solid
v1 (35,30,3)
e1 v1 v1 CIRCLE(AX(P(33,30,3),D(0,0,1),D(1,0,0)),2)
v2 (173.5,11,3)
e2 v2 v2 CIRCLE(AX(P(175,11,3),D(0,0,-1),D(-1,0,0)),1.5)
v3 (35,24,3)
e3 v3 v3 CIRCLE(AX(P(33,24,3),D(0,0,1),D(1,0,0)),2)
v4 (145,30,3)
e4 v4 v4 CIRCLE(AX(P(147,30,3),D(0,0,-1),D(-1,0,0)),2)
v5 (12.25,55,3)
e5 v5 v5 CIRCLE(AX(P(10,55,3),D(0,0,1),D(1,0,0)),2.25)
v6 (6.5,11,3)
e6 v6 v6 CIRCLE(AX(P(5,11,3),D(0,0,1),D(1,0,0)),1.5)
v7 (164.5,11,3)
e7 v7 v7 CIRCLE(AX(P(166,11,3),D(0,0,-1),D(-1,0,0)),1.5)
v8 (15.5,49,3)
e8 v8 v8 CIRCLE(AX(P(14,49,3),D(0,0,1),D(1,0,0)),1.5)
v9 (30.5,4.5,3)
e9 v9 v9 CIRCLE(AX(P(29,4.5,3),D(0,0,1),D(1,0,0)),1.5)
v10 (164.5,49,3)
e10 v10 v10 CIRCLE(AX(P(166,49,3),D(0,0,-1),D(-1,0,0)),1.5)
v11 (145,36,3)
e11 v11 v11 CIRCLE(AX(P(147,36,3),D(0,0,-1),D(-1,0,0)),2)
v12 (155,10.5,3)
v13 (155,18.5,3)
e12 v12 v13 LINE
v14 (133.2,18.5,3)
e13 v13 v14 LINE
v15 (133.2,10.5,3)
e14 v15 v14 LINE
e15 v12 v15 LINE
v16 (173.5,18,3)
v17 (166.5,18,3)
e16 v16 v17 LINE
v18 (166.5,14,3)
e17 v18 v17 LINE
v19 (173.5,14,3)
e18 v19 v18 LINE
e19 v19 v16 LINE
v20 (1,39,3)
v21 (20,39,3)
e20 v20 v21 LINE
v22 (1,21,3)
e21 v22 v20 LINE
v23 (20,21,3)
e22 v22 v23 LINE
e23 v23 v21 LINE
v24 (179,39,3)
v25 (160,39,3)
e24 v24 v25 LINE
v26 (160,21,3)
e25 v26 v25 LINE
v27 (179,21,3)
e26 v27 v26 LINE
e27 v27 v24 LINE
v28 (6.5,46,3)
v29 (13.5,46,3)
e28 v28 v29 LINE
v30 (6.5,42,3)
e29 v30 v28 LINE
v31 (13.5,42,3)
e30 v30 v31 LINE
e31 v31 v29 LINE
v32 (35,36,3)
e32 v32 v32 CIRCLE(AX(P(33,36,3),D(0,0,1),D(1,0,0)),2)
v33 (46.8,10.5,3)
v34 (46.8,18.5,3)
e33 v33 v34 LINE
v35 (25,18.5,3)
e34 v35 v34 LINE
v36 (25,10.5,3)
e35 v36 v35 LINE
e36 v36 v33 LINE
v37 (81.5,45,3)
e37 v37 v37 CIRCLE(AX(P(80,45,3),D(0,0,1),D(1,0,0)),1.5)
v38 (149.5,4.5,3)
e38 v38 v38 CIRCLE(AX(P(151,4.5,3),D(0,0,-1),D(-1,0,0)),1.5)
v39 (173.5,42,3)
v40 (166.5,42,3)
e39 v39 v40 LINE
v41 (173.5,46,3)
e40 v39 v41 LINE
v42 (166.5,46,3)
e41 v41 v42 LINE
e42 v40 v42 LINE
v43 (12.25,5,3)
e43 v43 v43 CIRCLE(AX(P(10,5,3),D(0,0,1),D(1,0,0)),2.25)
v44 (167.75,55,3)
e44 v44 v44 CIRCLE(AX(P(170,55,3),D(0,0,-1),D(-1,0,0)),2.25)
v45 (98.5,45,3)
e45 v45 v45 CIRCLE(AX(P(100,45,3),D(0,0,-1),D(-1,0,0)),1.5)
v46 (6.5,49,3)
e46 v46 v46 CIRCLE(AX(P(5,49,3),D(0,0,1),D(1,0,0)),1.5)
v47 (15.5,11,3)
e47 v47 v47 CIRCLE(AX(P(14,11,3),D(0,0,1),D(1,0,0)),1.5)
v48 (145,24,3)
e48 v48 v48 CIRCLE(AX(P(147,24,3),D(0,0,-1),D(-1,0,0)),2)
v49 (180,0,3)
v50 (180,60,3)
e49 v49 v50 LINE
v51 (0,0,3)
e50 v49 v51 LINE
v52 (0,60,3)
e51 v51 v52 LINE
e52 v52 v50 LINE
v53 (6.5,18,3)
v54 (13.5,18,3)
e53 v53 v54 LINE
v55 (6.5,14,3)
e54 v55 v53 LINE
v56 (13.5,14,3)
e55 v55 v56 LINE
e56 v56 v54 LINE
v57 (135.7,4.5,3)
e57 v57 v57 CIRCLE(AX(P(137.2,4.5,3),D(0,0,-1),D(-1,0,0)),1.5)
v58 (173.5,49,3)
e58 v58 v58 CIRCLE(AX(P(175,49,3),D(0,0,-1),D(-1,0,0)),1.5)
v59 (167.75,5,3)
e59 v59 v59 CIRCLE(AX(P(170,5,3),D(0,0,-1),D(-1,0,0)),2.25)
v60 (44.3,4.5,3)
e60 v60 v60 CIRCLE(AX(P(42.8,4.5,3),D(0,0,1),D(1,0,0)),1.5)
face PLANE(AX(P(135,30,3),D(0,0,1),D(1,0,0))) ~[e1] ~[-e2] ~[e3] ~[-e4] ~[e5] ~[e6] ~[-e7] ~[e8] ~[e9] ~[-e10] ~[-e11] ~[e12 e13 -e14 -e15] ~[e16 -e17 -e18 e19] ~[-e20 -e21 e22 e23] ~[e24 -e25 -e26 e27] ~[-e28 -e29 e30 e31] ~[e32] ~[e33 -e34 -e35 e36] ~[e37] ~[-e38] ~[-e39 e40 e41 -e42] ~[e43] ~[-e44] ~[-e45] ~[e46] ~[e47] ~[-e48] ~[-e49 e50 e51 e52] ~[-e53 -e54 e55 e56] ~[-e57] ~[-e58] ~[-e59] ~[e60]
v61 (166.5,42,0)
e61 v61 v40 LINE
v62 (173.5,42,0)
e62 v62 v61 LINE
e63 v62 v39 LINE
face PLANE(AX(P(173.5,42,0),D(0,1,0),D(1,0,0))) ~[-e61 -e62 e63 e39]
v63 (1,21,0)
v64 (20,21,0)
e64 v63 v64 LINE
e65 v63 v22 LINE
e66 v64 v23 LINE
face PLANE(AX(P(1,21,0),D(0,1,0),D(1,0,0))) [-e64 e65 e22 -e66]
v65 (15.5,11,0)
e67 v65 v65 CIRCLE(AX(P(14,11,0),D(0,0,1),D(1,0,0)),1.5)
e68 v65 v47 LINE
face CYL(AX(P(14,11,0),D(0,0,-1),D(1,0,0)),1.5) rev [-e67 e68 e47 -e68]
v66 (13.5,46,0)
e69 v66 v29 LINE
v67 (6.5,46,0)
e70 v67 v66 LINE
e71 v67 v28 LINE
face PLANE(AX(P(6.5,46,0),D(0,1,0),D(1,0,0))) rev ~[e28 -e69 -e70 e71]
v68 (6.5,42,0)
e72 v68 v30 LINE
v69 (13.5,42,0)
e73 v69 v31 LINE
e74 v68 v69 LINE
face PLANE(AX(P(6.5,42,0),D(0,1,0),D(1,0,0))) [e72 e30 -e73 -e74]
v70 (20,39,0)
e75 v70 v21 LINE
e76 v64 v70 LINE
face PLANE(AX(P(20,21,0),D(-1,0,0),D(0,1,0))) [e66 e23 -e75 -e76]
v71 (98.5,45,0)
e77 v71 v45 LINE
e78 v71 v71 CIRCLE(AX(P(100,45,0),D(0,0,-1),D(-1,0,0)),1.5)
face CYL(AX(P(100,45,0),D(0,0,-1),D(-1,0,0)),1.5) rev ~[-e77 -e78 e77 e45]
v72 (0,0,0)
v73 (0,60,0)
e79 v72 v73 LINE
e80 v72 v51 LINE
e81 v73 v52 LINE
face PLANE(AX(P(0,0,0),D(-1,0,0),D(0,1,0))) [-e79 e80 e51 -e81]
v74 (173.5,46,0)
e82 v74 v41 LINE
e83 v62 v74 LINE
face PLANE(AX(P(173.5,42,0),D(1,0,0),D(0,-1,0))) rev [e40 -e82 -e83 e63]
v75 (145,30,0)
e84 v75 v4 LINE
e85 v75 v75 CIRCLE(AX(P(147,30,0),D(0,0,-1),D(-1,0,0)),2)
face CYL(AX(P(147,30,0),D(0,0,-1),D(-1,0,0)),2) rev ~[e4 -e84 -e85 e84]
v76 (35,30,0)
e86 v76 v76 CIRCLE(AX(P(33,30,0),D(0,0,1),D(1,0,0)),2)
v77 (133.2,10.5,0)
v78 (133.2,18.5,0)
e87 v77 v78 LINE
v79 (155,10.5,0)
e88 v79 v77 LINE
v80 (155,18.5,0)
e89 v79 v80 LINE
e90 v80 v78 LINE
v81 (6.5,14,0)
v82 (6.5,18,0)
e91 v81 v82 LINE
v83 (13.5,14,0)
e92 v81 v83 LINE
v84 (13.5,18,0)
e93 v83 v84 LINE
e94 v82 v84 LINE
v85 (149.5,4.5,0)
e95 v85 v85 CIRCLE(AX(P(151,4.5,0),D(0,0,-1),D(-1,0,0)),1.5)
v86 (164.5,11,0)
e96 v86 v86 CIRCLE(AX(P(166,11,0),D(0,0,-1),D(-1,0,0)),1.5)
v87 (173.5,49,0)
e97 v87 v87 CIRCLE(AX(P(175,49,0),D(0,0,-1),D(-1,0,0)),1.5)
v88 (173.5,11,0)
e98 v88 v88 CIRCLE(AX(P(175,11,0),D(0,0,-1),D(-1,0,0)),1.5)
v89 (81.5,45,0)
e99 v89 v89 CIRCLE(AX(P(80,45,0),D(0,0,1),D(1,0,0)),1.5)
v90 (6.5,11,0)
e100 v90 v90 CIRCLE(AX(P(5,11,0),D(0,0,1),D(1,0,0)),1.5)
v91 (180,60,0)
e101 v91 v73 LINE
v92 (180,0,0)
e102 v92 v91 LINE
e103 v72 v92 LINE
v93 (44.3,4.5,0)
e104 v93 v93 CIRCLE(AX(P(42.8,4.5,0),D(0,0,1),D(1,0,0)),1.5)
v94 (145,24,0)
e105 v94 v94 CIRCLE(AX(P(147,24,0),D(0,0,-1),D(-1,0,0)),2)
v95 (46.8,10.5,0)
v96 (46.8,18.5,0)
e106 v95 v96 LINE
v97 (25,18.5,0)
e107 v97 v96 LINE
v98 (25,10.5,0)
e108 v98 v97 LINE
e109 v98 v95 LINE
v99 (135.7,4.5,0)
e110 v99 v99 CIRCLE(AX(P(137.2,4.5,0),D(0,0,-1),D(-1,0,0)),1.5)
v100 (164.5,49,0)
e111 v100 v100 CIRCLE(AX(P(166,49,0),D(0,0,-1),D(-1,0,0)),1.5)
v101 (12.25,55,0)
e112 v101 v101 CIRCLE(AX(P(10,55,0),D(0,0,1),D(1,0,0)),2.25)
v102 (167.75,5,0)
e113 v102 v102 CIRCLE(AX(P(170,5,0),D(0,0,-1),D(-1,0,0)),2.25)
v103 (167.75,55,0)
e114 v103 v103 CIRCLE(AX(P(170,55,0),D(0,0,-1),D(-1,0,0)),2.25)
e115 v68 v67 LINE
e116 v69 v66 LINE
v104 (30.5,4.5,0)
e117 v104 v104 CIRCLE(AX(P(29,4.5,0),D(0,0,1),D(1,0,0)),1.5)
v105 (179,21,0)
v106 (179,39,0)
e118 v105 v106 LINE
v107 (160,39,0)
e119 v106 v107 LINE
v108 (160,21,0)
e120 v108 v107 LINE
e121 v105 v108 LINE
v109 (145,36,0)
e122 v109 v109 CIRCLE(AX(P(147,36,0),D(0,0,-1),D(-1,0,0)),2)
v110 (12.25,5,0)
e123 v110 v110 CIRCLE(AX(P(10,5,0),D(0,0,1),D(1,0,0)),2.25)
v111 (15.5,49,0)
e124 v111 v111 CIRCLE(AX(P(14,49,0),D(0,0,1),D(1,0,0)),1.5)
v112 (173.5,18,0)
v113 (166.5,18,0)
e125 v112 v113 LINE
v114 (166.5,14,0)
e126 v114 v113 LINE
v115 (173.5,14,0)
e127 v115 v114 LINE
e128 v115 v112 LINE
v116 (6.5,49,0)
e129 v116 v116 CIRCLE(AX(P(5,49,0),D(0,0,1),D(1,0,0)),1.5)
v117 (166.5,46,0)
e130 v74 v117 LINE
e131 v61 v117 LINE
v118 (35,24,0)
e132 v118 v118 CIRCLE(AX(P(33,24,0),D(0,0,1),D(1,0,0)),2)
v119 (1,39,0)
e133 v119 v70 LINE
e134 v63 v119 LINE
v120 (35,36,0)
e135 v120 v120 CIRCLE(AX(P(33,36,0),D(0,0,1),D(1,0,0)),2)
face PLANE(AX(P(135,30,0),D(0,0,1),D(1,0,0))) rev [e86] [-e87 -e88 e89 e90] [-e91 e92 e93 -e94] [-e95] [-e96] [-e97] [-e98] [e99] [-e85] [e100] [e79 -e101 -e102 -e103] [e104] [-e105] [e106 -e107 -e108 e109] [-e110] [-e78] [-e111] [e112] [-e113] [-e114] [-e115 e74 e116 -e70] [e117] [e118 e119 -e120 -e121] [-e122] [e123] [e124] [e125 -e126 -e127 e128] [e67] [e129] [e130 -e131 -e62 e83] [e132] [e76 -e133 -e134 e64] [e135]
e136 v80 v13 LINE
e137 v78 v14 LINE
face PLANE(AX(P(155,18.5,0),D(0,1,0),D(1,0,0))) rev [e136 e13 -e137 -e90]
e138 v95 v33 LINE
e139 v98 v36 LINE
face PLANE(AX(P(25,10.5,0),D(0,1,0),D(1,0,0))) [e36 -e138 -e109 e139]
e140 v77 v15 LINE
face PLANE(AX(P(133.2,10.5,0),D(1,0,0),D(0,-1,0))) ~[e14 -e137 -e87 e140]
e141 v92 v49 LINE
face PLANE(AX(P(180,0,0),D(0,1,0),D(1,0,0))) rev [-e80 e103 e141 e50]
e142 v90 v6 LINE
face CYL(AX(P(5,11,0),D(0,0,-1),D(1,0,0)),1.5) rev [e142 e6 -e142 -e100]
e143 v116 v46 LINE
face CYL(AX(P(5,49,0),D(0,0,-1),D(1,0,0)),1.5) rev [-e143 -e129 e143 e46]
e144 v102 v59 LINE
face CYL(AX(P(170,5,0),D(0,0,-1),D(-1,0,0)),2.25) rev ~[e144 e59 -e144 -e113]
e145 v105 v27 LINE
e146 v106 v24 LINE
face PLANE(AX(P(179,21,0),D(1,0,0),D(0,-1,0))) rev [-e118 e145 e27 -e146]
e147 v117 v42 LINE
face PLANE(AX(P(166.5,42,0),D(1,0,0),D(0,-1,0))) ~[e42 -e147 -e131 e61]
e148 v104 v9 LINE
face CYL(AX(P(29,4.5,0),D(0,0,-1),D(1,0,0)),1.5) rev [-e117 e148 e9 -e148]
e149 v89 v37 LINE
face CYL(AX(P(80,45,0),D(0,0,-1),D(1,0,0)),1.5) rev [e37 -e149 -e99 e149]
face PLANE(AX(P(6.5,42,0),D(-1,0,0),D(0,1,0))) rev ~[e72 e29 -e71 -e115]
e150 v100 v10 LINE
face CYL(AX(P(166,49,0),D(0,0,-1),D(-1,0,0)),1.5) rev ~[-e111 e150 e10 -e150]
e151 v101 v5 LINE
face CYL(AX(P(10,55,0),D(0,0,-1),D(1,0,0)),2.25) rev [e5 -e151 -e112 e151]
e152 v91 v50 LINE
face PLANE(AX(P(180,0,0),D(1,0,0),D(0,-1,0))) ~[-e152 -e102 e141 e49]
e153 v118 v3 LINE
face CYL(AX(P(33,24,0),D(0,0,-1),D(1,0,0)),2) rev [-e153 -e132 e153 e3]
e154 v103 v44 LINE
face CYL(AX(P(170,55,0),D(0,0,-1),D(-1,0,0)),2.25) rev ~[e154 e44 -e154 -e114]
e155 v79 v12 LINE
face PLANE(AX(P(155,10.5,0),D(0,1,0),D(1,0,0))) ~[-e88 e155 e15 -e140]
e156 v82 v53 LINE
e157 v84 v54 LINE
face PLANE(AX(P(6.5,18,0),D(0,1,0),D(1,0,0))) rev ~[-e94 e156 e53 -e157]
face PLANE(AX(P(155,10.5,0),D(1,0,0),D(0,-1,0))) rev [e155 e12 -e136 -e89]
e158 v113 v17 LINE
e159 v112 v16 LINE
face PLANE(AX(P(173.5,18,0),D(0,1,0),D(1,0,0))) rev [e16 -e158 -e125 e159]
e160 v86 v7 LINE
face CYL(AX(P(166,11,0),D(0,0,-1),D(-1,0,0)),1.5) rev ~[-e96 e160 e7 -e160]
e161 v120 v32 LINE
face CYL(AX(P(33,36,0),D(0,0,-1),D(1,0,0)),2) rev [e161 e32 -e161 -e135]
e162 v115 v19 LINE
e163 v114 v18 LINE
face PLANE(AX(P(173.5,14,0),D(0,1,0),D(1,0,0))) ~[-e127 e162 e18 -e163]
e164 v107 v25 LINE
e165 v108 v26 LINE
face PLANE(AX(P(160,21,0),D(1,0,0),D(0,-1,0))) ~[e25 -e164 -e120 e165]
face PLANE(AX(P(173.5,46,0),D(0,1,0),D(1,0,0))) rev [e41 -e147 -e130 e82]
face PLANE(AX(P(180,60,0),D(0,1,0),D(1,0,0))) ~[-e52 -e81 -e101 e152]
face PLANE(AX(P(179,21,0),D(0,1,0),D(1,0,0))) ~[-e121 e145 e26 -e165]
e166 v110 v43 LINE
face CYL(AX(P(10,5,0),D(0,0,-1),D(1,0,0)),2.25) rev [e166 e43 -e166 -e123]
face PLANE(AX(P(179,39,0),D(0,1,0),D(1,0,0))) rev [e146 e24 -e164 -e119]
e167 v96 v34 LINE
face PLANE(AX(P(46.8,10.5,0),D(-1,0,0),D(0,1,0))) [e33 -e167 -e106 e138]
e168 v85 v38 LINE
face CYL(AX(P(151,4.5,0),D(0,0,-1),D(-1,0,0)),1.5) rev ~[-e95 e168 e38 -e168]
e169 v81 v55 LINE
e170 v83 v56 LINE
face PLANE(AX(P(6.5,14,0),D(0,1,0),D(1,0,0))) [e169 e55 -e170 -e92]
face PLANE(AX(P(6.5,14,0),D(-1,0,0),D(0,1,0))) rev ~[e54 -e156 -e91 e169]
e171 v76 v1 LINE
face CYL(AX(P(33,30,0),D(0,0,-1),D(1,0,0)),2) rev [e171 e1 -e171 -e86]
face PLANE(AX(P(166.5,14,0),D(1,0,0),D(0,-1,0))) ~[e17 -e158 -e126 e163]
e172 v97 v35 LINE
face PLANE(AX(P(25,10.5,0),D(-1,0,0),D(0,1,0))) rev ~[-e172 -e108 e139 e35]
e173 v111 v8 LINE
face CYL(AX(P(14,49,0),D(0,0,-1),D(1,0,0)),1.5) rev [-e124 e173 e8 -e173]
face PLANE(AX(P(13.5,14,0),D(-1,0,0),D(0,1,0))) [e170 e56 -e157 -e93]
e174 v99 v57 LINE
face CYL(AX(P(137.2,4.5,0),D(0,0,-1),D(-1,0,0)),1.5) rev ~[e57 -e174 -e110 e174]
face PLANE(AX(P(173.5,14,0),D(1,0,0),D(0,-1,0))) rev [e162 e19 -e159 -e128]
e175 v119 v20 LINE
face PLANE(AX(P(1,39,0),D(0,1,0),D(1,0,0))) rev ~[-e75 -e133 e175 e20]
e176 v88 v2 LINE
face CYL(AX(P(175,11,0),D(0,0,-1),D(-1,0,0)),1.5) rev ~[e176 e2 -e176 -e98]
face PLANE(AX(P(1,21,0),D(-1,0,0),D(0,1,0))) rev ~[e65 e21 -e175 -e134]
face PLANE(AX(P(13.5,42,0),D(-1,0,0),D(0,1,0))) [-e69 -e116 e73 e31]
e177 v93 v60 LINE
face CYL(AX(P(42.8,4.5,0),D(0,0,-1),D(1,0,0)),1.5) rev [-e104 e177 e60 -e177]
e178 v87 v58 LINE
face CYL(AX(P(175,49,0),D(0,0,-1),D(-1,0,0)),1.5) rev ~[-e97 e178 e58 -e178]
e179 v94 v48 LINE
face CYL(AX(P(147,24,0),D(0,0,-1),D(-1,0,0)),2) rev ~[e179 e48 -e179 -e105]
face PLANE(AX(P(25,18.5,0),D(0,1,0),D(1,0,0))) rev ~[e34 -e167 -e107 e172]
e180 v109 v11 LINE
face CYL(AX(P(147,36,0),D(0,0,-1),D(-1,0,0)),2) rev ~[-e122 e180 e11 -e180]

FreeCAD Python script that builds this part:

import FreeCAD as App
import Part
import Sketcher
from FreeCAD import Vector


def add_polygon(sketch, points):
    """Adds a closed chain of lines whose ends are joined by coincident constraints."""
    first, n = sketch.GeometryCount, len(points)
    for a, b in zip(points, points[1:] + points[:1]):
        sketch.addGeometry(Part.LineSegment(App.Vector(*a, 0), App.Vector(*b, 0)), False)
    for i in range(n):
        sketch.addConstraint(Sketcher.Constraint("Coincident", first + i, 2, first + (i + 1) % n, 1))

doc = App.newDocument("Part")
body = doc.addObject("PartDesign::Body", "Body")

# Sketch on XY plane
sketch1 = body.newObject("Sketcher::SketchObject", "Sketch")
sketch1.AttachmentSupport = (doc.getObject("XY_Plane"), [""])
sketch1.MapMode = "FlatFace"
add_polygon(sketch1, [(0, 60), (0, 0), (90, 0), (90, 60)])  # lines 0-3
sketch1.addGeometry(Part.Circle(Vector(10, 5, 0), Vector(0, 0, 1), 2.2), False)  # 4
sketch1.addGeometry(Part.Circle(Vector(5, 11, 0), Vector(0, 0, 1), 1.5), False)  # 5
add_polygon(sketch1, [(13.5, 14), (6.5, 14), (6.5, 18), (13.5, 18)])  # lines 6-9
sketch1.addGeometry(Part.Circle(Vector(14, 11, 0), Vector(0, 0, 1), 1.5), False)  # 10
sketch1.addGeometry(Part.Circle(Vector(29, 4.5, 0), Vector(0, 0, 1), 1.5), False)  # 11
add_polygon(sketch1, [(46.8, 10.5), (25, 10.5), (25, 18.5), (46.8, 18.5)])  # lines 12-15
sketch1.addGeometry(Part.Circle(Vector(33, 24, 0), Vector(0, 0, 1), 2), False)  # 16
sketch1.addGeometry(Part.Circle(Vector(42.8, 4.5, 0), Vector(0, 0, 1), 1.5), False)  # 17
add_polygon(sketch1, [(20, 21), (1, 21), (1, 39), (20, 39)])  # lines 18-21
sketch1.addGeometry(Part.Circle(Vector(33, 30, 0), Vector(0, 0, 1), 2), False)  # 22
sketch1.addGeometry(Part.Circle(Vector(33, 36, 0), Vector(0, 0, 1), 2), False)  # 23
add_polygon(sketch1, [(13.5, 42), (6.5, 42), (6.5, 46), (13.5, 46)])  # lines 24-27
sketch1.addGeometry(Part.Circle(Vector(5, 49, 0), Vector(0, 0, 1), 1.5), False)  # 28
sketch1.addGeometry(Part.Circle(Vector(14, 49, 0), Vector(0, 0, 1), 1.5), False)  # 29
sketch1.addGeometry(Part.Circle(Vector(10, 55, 0), Vector(0, 0, 1), 2.2), False)  # 30
sketch1.addGeometry(Part.Circle(Vector(80, 45, 0), Vector(0, 0, 1), 1.5), False)  # 31
sketch1.addConstraint(Sketcher.Constraint("Vertical", 0))
sketch1.addConstraint(Sketcher.Constraint("Horizontal", 1))
sketch1.addConstraint(Sketcher.Constraint("Vertical", 2))
sketch1.addConstraint(Sketcher.Constraint("Horizontal", 3))
sketch1.addConstraint(Sketcher.Constraint("Horizontal", 6))
sketch1.addConstraint(Sketcher.Constraint("Vertical", 7))
sketch1.addConstraint(Sketcher.Constraint("Horizontal", 8))
sketch1.addConstraint(Sketcher.Constraint("Vertical", 9))
sketch1.addConstraint(Sketcher.Constraint("Horizontal", 12))
sketch1.addConstraint(Sketcher.Constraint("Vertical", 13))
sketch1.addConstraint(Sketcher.Constraint("Horizontal", 14))
sketch1.addConstraint(Sketcher.Constraint("Vertical", 15))
sketch1.addConstraint(Sketcher.Constraint("Horizontal", 18))
sketch1.addConstraint(Sketcher.Constraint("Vertical", 19))
sketch1.addConstraint(Sketcher.Constraint("Horizontal", 20))
sketch1.addConstraint(Sketcher.Constraint("Vertical", 21))
sketch1.addConstraint(Sketcher.Constraint("Horizontal", 24))
sketch1.addConstraint(Sketcher.Constraint("Vertical", 25))
sketch1.addConstraint(Sketcher.Constraint("Horizontal", 26))
sketch1.addConstraint(Sketcher.Constraint("Vertical", 27))
sketch1.addConstraint(Sketcher.Constraint("Coincident", 0, 2, -1, 1))
sketch1.addConstraint(Sketcher.Constraint("Equal", 5, 10))
sketch1.addConstraint(Sketcher.Constraint("Equal", 10, 11))
sketch1.addConstraint(Sketcher.Constraint("Equal", 11, 17))
sketch1.addConstraint(Sketcher.Constraint("Equal", 16, 22))
sketch1.addConstraint(Sketcher.Constraint("Equal", 22, 23))
sketch1.addConstraint(Sketcher.Constraint("Equal", 17, 28))
sketch1.addConstraint(Sketcher.Constraint("Equal", 28, 29))
sketch1.addConstraint(Sketcher.Constraint("Equal", 4, 30))
sketch1.addConstraint(Sketcher.Constraint("Equal", 29, 31))
sketch1.addConstraint(Sketcher.Constraint("Horizontal", 5, 3, 10, 3))
sketch1.addConstraint(Sketcher.Constraint("Horizontal", 11, 3, 17, 3))
sketch1.addConstraint(Sketcher.Constraint("Horizontal", 28, 3, 29, 3))
sketch1.addConstraint(Sketcher.Constraint("Vertical", 16, 3, 22, 3))
sketch1.addConstraint(Sketcher.Constraint("Vertical", 22, 3, 23, 3))
sketch1.addConstraint(Sketcher.Constraint("Vertical", 5, 3, 28, 3))
sketch1.addConstraint(Sketcher.Constraint("Vertical", 10, 3, 29, 3))
sketch1.addConstraint(Sketcher.Constraint("Vertical", 4, 3, 30, 3))
sketch1.addConstraint(Sketcher.Constraint("Vertical", 7, 2, 24, 2))
sketch1.addConstraint(Sketcher.Constraint("Vertical", 9, 2, 26, 2))
sketch1.addConstraint(Sketcher.Constraint("Equal", 9, 25))
sketch1.addConstraint(Sketcher.Constraint("Diameter", 5, 3.0))
sketch1.addConstraint(Sketcher.Constraint("Diameter", 16, 4.0))
sketch1.addConstraint(Sketcher.Constraint("Diameter", 4, 4.5))
sketch1.addConstraint(Sketcher.Constraint("DistanceX", 1, 1, 1, 2, 90.0))
sketch1.addConstraint(Sketcher.Constraint("DistanceX", 6, 2, 6, 1, 7.0))
sketch1.addConstraint(Sketcher.Constraint("DistanceX", 18, 2, 18, 1, 19.0))
sketch1.addConstraint(Sketcher.Constraint("DistanceY", 0, 2, 0, 1, 60.0))
sketch1.addConstraint(Sketcher.Constraint("DistanceY", 7, 1, 7, 2, 4.0))
sketch1.addConstraint(Sketcher.Constraint("DistanceY", 13, 1, 13, 2, 8.0))
sketch1.addConstraint(Sketcher.Constraint("DistanceY", 19, 1, 19, 2, 18.0))
sketch1.addConstraint(Sketcher.Constraint("DistanceX", 12, 2, 12, 1, 21.8))
sketch1.addConstraint(Sketcher.Constraint("DistanceX", -1, 1, 4, 3, 10.0))
sketch1.addConstraint(Sketcher.Constraint("DistanceY", -1, 1, 4, 3, 5.0))
sketch1.addConstraint(Sketcher.Constraint("DistanceX", -1, 1, 5, 3, 5.0))
sketch1.addConstraint(Sketcher.Constraint("DistanceY", -1, 1, 5, 3, 11.0))
sketch1.addConstraint(Sketcher.Constraint("DistanceX", -1, 1, 10, 3, 14.0))
sketch1.addConstraint(Sketcher.Constraint("DistanceX", -1, 1, 11, 3, 29.0))
sketch1.addConstraint(Sketcher.Constraint("DistanceX", -1, 1, 16, 3, 33.0))
sketch1.addConstraint(Sketcher.Constraint("DistanceY", -1, 1, 16, 3, 24.0))
sketch1.addConstraint(Sketcher.Constraint("DistanceY", -1, 1, 22, 3, 30.0))
sketch1.addConstraint(Sketcher.Constraint("DistanceY", -1, 1, 23, 3, 36.0))
sketch1.addConstraint(Sketcher.Constraint("DistanceY", -1, 1, 28, 3, 49.0))
sketch1.addConstraint(Sketcher.Constraint("DistanceY", -1, 1, 30, 3, 55.0))
sketch1.addConstraint(Sketcher.Constraint("DistanceX", -1, 1, 31, 3, 80.0))
sketch1.addConstraint(Sketcher.Constraint("DistanceY", -1, 1, 31, 3, 45.0))
sketch1.addConstraint(Sketcher.Constraint("DistanceY", -1, 1, 6, 2, 14.0))
sketch1.addConstraint(Sketcher.Constraint("DistanceX", -1, 1, 12, 2, 25.0))
sketch1.addConstraint(Sketcher.Constraint("DistanceX", -1, 1, 18, 2, 1.0))
sketch1.addConstraint(Sketcher.Constraint("DistanceY", -1, 1, 18, 2, 21.0))
sketch1.addConstraint(Sketcher.Constraint("DistanceY", -1, 1, 24, 2, 42.0))
sketch1.addConstraint(Sketcher.Constraint("DistanceY", 11, 3, 12, 2, 6.0))
sketch1.addConstraint(Sketcher.Constraint("DistanceX", 17, 3, 14, 2, 4.0))
sketch1.addConstraint(Sketcher.Constraint("DistanceY", -1, 1, 11, 3, 4.5))
sketch1.addConstraint(Sketcher.Constraint("DistanceX", -1, 1, 6, 2, 6.5))
pad1 = body.newObject("PartDesign::Pad", "Pad")
pad1.Profile = sketch1
pad1.Length = 3
doc.recompute()

datumplane = body.newObject("PartDesign::Plane", "DatumPlane")
datumplane.AttachmentSupport = (doc.getObject("YZ_Plane"), [""])
datumplane.MapMode = "FlatFace"
datumplane.AttachmentOffset = App.Placement(Vector(0, 0, 90), App.Rotation())
mirrored = body.newObject("PartDesign::Mirrored", "Mirrored")
mirrored.Originals = [pad1]
mirrored.MirrorPlane = (datumplane, [""])
body.Tip = mirrored

doc.recompute()
